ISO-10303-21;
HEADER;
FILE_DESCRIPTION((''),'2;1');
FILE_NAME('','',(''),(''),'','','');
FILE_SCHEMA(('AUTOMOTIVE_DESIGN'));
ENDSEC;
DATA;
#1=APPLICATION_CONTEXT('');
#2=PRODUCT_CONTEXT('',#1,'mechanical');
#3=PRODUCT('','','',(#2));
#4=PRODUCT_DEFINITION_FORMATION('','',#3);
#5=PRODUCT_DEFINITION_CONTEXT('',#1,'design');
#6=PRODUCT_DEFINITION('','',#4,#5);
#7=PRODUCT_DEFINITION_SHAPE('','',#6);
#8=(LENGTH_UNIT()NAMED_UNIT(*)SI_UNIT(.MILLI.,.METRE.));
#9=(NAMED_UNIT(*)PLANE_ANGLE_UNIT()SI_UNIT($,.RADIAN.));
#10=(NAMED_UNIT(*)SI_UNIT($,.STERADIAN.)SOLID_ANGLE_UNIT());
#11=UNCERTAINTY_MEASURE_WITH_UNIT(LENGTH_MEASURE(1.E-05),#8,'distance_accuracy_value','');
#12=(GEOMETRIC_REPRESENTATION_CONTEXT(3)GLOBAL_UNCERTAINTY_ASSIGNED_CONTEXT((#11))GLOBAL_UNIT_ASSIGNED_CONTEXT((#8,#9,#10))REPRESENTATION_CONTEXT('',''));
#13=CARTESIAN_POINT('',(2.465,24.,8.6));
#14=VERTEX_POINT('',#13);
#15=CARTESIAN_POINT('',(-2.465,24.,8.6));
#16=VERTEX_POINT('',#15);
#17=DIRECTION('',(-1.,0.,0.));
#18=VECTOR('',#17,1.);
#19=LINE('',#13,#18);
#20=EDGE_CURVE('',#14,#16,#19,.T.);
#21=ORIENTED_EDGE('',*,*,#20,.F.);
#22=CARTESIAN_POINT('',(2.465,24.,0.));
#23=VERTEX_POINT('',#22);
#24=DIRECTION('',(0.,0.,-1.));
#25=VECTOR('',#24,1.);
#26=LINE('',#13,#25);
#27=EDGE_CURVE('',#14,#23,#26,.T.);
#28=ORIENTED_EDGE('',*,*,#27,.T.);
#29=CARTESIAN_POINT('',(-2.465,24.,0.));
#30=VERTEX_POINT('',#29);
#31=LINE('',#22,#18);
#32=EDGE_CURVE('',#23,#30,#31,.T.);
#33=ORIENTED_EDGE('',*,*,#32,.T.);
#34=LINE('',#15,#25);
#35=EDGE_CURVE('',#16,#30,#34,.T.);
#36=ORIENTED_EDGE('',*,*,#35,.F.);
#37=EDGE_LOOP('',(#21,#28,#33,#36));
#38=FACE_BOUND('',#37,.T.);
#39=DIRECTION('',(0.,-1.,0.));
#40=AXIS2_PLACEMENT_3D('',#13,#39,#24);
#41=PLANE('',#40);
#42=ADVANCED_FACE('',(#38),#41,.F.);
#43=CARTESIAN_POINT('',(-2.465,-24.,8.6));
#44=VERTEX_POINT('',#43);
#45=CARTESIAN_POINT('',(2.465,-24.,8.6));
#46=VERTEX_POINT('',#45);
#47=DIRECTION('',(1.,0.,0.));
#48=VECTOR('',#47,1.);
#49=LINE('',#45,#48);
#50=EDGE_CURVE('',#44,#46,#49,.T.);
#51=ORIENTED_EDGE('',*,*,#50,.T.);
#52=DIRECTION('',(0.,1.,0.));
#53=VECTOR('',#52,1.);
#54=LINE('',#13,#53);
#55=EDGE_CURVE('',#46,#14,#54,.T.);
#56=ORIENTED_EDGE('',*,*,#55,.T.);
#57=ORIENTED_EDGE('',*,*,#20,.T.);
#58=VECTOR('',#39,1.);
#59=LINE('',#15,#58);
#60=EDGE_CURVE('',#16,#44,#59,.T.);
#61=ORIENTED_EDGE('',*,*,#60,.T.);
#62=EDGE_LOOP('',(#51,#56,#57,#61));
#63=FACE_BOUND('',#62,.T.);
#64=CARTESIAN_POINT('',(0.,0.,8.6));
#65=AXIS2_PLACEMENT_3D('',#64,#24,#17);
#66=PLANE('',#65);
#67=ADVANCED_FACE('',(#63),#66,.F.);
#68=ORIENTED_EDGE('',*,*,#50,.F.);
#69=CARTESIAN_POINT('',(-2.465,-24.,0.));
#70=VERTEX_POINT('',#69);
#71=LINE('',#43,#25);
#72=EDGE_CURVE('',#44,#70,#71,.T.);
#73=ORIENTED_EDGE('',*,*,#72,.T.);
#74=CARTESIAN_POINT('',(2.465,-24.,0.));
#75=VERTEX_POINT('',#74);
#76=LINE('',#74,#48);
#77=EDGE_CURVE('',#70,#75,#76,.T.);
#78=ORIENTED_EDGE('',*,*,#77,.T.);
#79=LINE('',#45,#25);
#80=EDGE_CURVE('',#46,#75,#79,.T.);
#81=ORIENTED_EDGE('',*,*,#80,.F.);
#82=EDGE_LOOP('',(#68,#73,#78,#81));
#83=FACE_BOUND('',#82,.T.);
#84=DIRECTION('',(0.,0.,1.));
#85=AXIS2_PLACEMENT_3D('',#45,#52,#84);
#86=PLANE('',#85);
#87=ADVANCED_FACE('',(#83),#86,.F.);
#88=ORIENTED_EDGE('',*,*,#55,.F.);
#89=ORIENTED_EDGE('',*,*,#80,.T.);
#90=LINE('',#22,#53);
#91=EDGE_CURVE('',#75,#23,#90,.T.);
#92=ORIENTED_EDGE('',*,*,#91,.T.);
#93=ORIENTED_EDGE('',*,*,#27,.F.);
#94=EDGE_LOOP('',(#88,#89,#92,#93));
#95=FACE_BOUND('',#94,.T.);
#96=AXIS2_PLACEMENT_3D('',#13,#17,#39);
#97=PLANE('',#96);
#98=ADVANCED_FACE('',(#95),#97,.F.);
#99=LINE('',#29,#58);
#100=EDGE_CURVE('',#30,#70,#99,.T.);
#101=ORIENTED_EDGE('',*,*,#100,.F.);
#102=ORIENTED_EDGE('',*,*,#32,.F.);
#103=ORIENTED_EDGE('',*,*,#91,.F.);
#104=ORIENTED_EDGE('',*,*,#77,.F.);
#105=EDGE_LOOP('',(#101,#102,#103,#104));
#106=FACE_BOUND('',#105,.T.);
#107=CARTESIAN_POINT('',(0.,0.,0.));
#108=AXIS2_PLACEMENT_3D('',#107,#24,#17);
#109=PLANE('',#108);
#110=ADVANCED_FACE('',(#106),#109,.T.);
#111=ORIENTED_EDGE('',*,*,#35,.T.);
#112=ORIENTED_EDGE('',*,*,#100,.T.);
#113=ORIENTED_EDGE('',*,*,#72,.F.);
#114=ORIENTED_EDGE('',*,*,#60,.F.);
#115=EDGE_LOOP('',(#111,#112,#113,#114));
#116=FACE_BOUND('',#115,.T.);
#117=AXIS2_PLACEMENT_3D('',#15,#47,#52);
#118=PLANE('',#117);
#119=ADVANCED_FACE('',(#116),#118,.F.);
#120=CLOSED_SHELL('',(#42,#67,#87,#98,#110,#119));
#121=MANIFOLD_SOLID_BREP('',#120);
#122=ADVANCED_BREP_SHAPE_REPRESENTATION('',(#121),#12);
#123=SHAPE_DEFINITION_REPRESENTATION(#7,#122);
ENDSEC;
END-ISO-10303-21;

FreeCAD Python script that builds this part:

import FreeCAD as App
import Part
import Sketcher

V = App.Vector
Q = App.Units.Quantity

doc = App.newDocument("Part")
body = doc.addObject("PartDesign::Body", "Body")

sketch1 = body.newObject("Sketcher::SketchObject", "Sketch")
sketch1.AttachmentSupport = (doc.getObject("XY_Plane"), [""])
sketch1.MapMode = "FlatFace"
sketch1.addGeometry([
    Part.LineSegment(V(-2.5, 24, 0), V(-2.5, -24, 0)),
    Part.LineSegment(V(-2.5, -24, 0), V(2.5, -24, 0)),
    Part.LineSegment(V(2.5, -24, 0), V(2.5, 24, 0)),
    Part.LineSegment(V(2.5, 24, 0), V(-2.5, 24, 0)),
], False)
sketch1.addConstraint([
    Sketcher.Constraint("Coincident", 0, 2, 1, 1),
    Sketcher.Constraint("Coincident", 1, 2, 2, 1),
    Sketcher.Constraint("Coincident", 2, 2, 3, 1),
    Sketcher.Constraint("Coincident", 3, 2, 0, 1),
    Sketcher.Constraint("Vertical", 0),
    Sketcher.Constraint("Horizontal", 1),
    Sketcher.Constraint("Vertical", 2),
    Sketcher.Constraint("Horizontal", 3),
    Sketcher.Constraint("Symmetric", 0, 2, 2, 2, -1, 1),
    Sketcher.Constraint("DistanceY", 0, 2, 0, 1, Q("48 mm")),
    Sketcher.Constraint("DistanceX", 1, 1, 1, 2, Q("4.93 mm")),
])
pad1 = body.newObject("PartDesign::Pad", "Pad")
pad1.Profile = sketch1
pad1.Length = 8.6

doc.recompute()
